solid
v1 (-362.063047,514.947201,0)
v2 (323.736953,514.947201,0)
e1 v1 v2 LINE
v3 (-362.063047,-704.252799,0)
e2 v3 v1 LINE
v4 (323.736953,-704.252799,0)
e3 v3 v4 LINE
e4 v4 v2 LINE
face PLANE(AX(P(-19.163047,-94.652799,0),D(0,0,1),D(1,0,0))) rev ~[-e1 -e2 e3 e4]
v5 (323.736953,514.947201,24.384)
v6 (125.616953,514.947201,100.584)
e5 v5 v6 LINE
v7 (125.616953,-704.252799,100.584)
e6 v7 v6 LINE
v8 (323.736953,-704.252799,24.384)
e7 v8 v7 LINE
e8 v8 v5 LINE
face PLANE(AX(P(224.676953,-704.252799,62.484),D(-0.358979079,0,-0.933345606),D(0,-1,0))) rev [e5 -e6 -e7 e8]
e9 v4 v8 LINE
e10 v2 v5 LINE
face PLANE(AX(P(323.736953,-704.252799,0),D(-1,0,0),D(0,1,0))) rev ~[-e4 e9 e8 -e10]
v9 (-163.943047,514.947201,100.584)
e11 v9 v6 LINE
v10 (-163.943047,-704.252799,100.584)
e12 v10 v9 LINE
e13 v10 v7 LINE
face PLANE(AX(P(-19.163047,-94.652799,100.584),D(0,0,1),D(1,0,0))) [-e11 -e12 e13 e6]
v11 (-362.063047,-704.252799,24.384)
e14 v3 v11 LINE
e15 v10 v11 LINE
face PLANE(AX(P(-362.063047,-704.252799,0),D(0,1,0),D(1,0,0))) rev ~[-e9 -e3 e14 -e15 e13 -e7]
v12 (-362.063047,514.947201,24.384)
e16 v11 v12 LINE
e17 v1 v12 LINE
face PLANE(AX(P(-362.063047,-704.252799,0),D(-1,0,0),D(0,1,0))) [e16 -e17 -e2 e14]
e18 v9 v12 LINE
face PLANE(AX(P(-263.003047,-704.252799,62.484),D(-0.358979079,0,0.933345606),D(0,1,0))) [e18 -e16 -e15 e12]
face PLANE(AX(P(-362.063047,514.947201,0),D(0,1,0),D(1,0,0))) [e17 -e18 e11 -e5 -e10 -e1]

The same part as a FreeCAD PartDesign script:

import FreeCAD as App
import Part
import Sketcher
from FreeCAD import Vector
Q = App.Units.Quantity


def edges_at(feature, points):
    """Names of the edges that pass closest to the given points."""
    edges = feature.Shape.Edges
    near = lambda p: min(range(len(edges)), key=lambda i: edges[i].distToShape(Part.Vertex(*p))[0])
    return sorted({f"Edge{near(p) + 1}" for p in points})

doc = App.newDocument("Part")
body = doc.addObject("PartDesign::Body", "Body")

sketch1 = doc.addObject("Sketcher::SketchObject", "Sketch")
body.addObject(sketch1)
sketch1.AttachmentSupport = (doc.XY_Plane, [""])
sketch1.MapMode = "FlatFace"
sketch1.addGeometry(Part.LineSegment(Vector(-362.063047, 514.947201, 0), Vector(-362.063047, -704.252799, 0)), False)
sketch1.addGeometry(Part.LineSegment(Vector(-362.063047, -704.252799, 0), Vector(323.736953, -704.252799, 0)), False)
sketch1.addGeometry(Part.LineSegment(Vector(323.736953, -704.252799, 0), Vector(323.736953, 514.947201, 0)), False)
sketch1.addGeometry(Part.LineSegment(Vector(323.736953, 514.947201, 0), Vector(-362.063047, 514.947201, 0)), False)
sketch1.addConstraint(Sketcher.Constraint("Coincident", 0, 2, 1, 1))
sketch1.addConstraint(Sketcher.Constraint("Coincident", 1, 2, 2, 1))
sketch1.addConstraint(Sketcher.Constraint("Coincident", 2, 2, 3, 1))
sketch1.addConstraint(Sketcher.Constraint("Coincident", 3, 2, 0, 1))
sketch1.addConstraint(Sketcher.Constraint("Vertical", 0))
sketch1.addConstraint(Sketcher.Constraint("Horizontal", 1))
sketch1.addConstraint(Sketcher.Constraint("Vertical", 2))
sketch1.addConstraint(Sketcher.Constraint("Horizontal", 3))
sketch1.addConstraint(Sketcher.Constraint("DistanceX", 1, 1, 1, 2, Q("27 in")))
sketch1.addConstraint(Sketcher.Constraint("DistanceY", 0, 2, 0, 1, Q("48 in")))
sketch1.addConstraint(Sketcher.Constraint("DistanceY", 0, 2, -1, 1, Q("704.252799 mm")))
sketch1.addConstraint(Sketcher.Constraint("DistanceX", 0, 2, -1, 1, Q("362.063047 mm")))
pad1 = doc.addObject("PartDesign::Pad", "Pad")
body.addObject(pad1)
pad1.Profile = sketch1
pad1.Length = Q("3.96 in")
doc.recompute()

chamfer = doc.addObject("PartDesign::Chamfer", "Chamfer")
body.addObject(chamfer)
chamfer.Base = (pad1, edges_at(pad1, [(-362.063, -94.653, 100.584)]))
chamfer.ChamferType = "Two distances"
chamfer.Size = Q("7.8 in")
chamfer.Size2 = Q("3 in")
chamfer.FlipDirection = True
doc.recompute()

chamfer2 = doc.addObject("PartDesign::Chamfer", "Chamfer001")
body.addObject(chamfer2)
chamfer2.Base = (chamfer, edges_at(chamfer, [(323.737, -94.653, 100.584)]))
chamfer2.ChamferType = "Two distances"
chamfer2.Size = Q("3 in")
chamfer2.Size2 = Q("7.8 in")
chamfer2.FlipDirection = True

doc.recompute()
